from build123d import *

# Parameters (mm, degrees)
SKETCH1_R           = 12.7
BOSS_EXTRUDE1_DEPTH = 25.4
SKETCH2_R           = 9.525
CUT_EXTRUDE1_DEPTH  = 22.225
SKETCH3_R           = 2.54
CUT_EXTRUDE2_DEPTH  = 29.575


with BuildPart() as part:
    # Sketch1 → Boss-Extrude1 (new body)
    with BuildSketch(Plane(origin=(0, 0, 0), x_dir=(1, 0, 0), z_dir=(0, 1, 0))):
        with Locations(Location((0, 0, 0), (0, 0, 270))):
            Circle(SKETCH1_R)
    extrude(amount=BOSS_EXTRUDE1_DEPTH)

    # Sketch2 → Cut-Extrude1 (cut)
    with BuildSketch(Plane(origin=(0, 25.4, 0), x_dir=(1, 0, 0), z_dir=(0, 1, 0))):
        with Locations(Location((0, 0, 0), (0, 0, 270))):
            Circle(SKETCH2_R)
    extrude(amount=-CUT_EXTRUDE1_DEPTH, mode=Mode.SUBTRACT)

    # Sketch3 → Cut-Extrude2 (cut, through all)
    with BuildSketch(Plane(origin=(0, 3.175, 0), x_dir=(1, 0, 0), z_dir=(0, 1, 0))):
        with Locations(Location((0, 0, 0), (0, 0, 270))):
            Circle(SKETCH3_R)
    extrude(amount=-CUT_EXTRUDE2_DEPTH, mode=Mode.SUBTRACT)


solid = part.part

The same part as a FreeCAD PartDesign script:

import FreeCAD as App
import Part
import Sketcher
Q = App.Units.Quantity

doc = App.newDocument("Part")
params = doc.addObject("Spreadsheet::Sheet", "Params")
for row, (alias, value) in enumerate([
    ("sketch1_diameter", "1 in"),
    ("pad1_length", "1 in"),
    ("sketch2_diameter", "0.75 in"),
    ("pocket1_length", "0.875 in"),
    ("sketch3_diameter", "0.2 in"),
], start=1):
    params.set(f"A{row}", alias)
    params.set(f"B{row}", "=" + value)
    params.setAlias(f"B{row}", alias)

body = doc.addObject("PartDesign::Body", "Body")

# Sketch on XZ plane
sketch1 = body.newObject("Sketcher::SketchObject", "Sketch")
sketch1.AttachmentSupport = (doc.getObject("XZ_Plane"), [""])
sketch1.MapMode = "FlatFace"
sketch1.addGeometry(Part.Circle(App.Vector(0, 0, 0), App.Vector(0, 0, 1), 13), False)
sketch1.addConstraint([
    Sketcher.Constraint("Coincident", 0, 3, -1, 1),
    Sketcher.Constraint("Diameter", 0, Q("1 in")),
])
sketch1.setExpression("Constraints[1]", "Params.sketch1_diameter")
pad1 = body.newObject("PartDesign::Pad", "Pad")
pad1.Profile = sketch1
pad1.setExpression("Length", "Params.pad1_length")
pad1.Reversed = True

# Sketch on XZ plane
sketch2 = body.newObject("Sketcher::SketchObject", "Sketch001")
sketch2.AttachmentSupport = (doc.getObject("XZ_Plane"), [""])
sketch2.MapMode = "FlatFace"
sketch2.AttachmentOffset = App.Placement(App.Vector(0, 0, -1 * 25.4), App.Rotation())
sketch2.addGeometry(Part.Circle(App.Vector(0, 0, 0), App.Vector(0, 0, 1), 10), False)
sketch2.addConstraint([
    Sketcher.Constraint("Coincident", 0, 3, -1, 1),
    Sketcher.Constraint("Diameter", 0, Q("0.75 in")),
])
sketch2.setExpression("Constraints[1]", "Params.sketch2_diameter")
pocket1 = body.newObject("PartDesign::Pocket", "Pocket")
pocket1.Profile = sketch2
pocket1.setExpression("Length", "Params.pocket1_length")
pocket1.Reversed = True

# Sketch on XZ plane
sketch3 = body.newObject("Sketcher::SketchObject", "Sketch002")
sketch3.AttachmentSupport = (doc.getObject("XZ_Plane"), [""])
sketch3.MapMode = "FlatFace"
sketch3.AttachmentOffset = App.Placement(App.Vector(0, 0, -0.125 * 25.4), App.Rotation())
sketch3.addGeometry(Part.Circle(App.Vector(0, 0, 0), App.Vector(0, 0, 1), 2.5), False)
sketch3.addConstraint([
    Sketcher.Constraint("Coincident", 0, 3, -1, 1),
    Sketcher.Constraint("Diameter", 0, Q("0.2 in")),
])
sketch3.setExpression("Constraints[1]", "Params.sketch3_diameter")
pocket2 = body.newObject("PartDesign::Pocket", "Pocket001")
pocket2.Profile = sketch3
pocket2.Type = "ThroughAll"
pocket2.Reversed = True

doc.recompute()
